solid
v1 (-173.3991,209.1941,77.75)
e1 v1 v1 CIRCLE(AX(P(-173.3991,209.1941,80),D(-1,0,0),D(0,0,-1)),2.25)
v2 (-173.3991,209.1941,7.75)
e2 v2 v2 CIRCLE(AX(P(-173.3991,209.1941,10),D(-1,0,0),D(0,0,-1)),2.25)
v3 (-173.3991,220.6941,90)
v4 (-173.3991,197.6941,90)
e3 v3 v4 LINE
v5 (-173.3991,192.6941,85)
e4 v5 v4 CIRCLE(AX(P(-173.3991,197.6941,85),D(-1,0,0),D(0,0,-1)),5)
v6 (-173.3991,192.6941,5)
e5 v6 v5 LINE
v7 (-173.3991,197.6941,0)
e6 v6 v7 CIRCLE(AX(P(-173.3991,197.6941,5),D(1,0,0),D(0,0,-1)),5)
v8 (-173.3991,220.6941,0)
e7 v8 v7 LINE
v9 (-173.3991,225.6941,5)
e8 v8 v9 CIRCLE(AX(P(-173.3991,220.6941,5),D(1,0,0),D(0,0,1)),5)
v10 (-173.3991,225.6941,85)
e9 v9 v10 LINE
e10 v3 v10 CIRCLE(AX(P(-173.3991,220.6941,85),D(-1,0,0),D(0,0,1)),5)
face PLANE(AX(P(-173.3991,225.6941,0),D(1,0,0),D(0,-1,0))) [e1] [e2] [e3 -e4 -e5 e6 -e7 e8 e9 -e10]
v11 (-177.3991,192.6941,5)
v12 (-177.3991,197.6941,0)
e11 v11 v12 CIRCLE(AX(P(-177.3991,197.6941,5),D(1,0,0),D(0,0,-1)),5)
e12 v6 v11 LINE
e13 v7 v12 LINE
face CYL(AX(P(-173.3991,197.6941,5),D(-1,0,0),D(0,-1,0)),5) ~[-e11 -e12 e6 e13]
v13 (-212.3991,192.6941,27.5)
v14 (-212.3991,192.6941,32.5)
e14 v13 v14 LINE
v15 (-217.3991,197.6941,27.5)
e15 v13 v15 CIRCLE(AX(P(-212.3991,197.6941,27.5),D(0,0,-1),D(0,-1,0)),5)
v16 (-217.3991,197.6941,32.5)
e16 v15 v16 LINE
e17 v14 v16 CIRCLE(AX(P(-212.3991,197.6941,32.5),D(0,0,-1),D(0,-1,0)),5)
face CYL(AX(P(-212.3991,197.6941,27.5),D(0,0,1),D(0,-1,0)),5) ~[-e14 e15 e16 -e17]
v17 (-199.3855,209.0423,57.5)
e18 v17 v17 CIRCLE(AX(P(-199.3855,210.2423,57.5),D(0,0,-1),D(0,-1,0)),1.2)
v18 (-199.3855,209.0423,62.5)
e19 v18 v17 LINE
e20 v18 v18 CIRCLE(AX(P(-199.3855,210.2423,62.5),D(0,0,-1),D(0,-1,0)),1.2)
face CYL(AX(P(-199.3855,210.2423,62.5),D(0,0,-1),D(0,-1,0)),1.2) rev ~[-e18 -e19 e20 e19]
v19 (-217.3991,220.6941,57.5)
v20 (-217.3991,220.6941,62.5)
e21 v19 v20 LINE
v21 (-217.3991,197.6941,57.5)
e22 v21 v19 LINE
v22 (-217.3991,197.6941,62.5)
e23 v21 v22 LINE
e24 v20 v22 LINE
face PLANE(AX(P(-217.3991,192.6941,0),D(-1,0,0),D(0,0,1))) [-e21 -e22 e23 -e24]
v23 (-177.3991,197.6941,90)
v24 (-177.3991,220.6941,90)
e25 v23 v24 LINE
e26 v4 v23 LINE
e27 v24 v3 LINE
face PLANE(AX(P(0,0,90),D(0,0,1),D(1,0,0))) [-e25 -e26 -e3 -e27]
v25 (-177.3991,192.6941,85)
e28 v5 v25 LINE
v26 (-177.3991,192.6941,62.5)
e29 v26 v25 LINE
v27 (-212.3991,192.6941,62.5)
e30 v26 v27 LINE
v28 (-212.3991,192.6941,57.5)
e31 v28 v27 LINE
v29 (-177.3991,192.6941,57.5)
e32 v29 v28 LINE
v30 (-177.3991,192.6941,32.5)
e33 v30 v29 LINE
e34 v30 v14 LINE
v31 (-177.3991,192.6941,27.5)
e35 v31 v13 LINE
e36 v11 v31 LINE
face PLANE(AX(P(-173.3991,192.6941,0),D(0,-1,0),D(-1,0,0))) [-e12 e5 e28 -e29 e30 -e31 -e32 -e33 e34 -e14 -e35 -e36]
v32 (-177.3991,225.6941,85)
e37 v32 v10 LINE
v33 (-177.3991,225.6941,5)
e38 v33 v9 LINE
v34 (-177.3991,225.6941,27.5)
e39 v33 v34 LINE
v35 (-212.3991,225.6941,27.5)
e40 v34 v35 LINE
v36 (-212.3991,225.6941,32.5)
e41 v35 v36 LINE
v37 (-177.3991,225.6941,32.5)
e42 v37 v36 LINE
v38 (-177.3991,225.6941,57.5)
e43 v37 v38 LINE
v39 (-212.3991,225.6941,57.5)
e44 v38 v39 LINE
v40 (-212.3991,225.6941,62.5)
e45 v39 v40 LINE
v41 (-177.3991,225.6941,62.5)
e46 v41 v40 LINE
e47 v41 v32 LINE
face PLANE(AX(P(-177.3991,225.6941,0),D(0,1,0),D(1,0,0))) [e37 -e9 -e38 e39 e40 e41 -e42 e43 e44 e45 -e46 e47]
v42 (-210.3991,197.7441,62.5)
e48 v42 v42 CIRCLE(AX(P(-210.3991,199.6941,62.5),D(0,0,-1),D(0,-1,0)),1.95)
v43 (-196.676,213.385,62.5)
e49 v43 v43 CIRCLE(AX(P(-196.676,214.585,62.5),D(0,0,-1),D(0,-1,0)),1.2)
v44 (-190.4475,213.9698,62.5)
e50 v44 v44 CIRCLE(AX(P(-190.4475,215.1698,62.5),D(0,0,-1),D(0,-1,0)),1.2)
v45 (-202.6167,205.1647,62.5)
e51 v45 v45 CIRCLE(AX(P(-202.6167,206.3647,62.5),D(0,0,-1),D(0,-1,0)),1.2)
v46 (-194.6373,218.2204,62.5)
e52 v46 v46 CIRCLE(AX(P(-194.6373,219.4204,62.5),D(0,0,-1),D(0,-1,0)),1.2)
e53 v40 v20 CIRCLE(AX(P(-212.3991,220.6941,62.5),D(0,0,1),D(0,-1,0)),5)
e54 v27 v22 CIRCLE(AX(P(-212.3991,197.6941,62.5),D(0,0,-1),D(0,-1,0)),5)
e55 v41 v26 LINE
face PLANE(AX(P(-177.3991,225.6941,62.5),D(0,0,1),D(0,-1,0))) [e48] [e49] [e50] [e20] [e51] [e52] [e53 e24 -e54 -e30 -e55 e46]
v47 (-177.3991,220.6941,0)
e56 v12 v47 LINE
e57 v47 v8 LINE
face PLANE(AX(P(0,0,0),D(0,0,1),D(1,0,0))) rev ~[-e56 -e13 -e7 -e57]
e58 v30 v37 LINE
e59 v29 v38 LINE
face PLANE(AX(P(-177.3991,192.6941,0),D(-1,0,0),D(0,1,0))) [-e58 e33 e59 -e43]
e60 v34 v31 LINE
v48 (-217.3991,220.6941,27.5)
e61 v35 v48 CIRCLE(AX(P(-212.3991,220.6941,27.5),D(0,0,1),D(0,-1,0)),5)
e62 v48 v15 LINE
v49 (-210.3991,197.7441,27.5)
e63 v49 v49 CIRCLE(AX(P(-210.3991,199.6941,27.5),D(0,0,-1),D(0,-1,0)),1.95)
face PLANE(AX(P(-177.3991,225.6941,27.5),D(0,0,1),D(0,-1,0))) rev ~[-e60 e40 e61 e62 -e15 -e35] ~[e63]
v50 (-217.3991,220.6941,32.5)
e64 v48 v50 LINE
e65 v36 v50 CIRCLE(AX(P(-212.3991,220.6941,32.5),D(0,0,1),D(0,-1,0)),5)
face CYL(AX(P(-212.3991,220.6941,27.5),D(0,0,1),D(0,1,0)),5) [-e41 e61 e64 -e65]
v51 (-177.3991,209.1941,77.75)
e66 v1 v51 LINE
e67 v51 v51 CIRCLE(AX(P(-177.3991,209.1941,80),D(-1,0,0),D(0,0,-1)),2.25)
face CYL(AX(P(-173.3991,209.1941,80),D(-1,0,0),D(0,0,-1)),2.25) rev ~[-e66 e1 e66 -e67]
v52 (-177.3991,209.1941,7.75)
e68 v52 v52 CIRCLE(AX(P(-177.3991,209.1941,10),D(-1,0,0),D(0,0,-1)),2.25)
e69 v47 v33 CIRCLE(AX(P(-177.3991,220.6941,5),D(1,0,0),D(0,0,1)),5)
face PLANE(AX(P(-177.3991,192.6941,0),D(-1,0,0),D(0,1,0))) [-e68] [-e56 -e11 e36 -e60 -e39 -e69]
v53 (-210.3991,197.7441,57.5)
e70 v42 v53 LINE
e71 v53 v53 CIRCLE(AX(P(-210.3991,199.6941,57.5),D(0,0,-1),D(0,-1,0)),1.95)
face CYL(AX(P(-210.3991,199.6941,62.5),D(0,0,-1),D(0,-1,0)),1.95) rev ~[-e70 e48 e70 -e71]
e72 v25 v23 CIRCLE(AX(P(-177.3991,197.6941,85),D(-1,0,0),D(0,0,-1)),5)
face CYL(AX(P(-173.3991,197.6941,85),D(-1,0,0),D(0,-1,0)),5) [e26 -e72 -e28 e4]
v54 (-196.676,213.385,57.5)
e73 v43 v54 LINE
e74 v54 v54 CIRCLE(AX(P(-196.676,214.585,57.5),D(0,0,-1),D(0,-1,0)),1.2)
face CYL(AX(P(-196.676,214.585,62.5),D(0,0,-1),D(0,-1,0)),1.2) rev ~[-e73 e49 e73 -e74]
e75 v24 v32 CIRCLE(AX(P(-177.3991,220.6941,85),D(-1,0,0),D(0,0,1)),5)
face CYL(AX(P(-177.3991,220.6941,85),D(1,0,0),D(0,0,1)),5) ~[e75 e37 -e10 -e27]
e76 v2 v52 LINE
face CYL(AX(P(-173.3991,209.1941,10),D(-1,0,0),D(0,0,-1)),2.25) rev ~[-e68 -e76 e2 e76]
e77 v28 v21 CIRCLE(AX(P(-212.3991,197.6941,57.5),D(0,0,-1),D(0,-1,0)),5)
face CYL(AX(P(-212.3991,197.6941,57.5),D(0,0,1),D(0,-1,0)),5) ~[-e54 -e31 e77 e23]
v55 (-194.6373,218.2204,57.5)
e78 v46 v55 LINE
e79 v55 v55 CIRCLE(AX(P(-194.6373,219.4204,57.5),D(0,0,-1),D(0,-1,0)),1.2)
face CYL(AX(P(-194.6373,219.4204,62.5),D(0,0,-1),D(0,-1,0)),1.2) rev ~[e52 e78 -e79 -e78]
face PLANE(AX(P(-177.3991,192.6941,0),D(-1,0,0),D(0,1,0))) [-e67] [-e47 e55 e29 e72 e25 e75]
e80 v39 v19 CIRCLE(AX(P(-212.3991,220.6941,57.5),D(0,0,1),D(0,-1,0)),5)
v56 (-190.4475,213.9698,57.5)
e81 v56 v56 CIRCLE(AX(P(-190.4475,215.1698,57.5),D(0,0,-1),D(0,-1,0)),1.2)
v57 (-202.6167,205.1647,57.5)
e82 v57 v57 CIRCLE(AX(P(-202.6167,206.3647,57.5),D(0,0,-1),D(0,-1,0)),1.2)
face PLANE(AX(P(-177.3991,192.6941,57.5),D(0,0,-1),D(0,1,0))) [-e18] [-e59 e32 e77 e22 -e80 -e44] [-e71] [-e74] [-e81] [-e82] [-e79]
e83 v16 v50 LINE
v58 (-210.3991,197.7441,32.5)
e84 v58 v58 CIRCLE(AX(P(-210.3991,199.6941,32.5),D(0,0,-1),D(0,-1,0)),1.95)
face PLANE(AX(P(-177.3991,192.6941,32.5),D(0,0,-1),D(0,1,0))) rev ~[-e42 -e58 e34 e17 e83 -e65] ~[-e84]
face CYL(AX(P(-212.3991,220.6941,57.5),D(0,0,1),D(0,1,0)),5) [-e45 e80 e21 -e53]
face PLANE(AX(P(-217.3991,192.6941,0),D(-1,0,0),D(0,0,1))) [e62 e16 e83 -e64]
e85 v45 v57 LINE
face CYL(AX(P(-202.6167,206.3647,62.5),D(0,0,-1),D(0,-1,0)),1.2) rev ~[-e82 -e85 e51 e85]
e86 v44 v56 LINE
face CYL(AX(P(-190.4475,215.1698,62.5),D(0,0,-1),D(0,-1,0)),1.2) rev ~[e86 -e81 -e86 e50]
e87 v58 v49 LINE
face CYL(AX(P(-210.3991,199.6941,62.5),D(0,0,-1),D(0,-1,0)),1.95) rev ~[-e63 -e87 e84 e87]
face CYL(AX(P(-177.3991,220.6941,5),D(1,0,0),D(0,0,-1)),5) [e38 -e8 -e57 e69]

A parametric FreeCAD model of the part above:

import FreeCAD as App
import Part
import Sketcher


def edges_at(feature, points):
    """Names of the edges that pass closest to the given points."""
    edges = feature.Shape.Edges
    near = lambda p: min(range(len(edges)), key=lambda i: edges[i].distToShape(Part.Vertex(*p))[0])
    return sorted({f"Edge{near(p) + 1}" for p in points})

doc = App.newDocument("Part")
body = doc.addObject("PartDesign::Body", "Body")

# Sketch on XY plane
sketch1 = body.newObject("Sketcher::SketchObject", "Sketch")
sketch1.AttachmentSupport = (doc.getObject("XY_Plane"), [""])
sketch1.MapMode = "FlatFace"
sketch1.addGeometry([
    Part.LineSegment(App.Vector(-177.4, 192.7, 0), App.Vector(-173.4, 192.7, 0)),
    Part.LineSegment(App.Vector(-173.4, 192.7, 0), App.Vector(-173.4, 225.7, 0)),
    Part.LineSegment(App.Vector(-173.4, 225.7, 0), App.Vector(-177.4, 225.7, 0)),
    Part.LineSegment(App.Vector(-177.4, 225.7, 0), App.Vector(-177.4, 192.7, 0)),
], False)
sketch1.addConstraint([
    Sketcher.Constraint("Coincident", 0, 2, 1, 1),
    Sketcher.Constraint("Coincident", 1, 2, 2, 1),
    Sketcher.Constraint("Coincident", 2, 2, 3, 1),
    Sketcher.Constraint("Coincident", 3, 2, 0, 1),
    Sketcher.Constraint("Horizontal", 0),
    Sketcher.Constraint("Vertical", 1),
    Sketcher.Constraint("Horizontal", 2),
    Sketcher.Constraint("Vertical", 3),
    Sketcher.Constraint("DistanceX", 0, 1, 0, 2, 4.0),
    Sketcher.Constraint("DistanceY", 1, 1, 1, 2, 33.0),
    Sketcher.Constraint("DistanceX", 0, 2, -1, 1, 173.399),
    Sketcher.Constraint("DistanceY", -1, 1, 0, 2, 192.694),
])
pad1 = body.newObject("PartDesign::Pad", "Pad")
pad1.Profile = sketch1
pad1.Length = 90

# Sketch on YZ plane
sketch2 = body.newObject("Sketcher::SketchObject", "Sketch001")
sketch2.AttachmentSupport = (doc.getObject("YZ_Plane"), [""])
sketch2.MapMode = "FlatFace"
sketch2.AttachmentOffset = App.Placement(App.Vector(0, 0, -177.3991), App.Rotation())
sketch2.addGeometry([
    Part.LineSegment(App.Vector(193, 58, 0), App.Vector(193, 62, 0)),  # 0
    Part.LineSegment(App.Vector(193, 62, 0), App.Vector(226, 62, 0)),  # 1
    Part.LineSegment(App.Vector(226, 62, 0), App.Vector(226, 58, 0)),  # 2
    Part.LineSegment(App.Vector(226, 58, 0), App.Vector(193, 58, 0)),  # 3
    Part.LineSegment(App.Vector(193, 28, 0), App.Vector(193, 32, 0)),  # 4
    Part.LineSegment(App.Vector(193, 32, 0), App.Vector(226, 32, 0)),  # 5
    Part.LineSegment(App.Vector(226, 32, 0), App.Vector(226, 28, 0)),  # 6
    Part.LineSegment(App.Vector(226, 28, 0), App.Vector(193, 28, 0)),  # 7
], False)
sketch2.addConstraint([
    Sketcher.Constraint("Coincident", 0, 2, 1, 1),
    Sketcher.Constraint("Coincident", 1, 2, 2, 1),
    Sketcher.Constraint("Coincident", 2, 2, 3, 1),
    Sketcher.Constraint("Coincident", 3, 2, 0, 1),
    Sketcher.Constraint("Coincident", 4, 2, 5, 1),
    Sketcher.Constraint("Coincident", 5, 2, 6, 1),
    Sketcher.Constraint("Coincident", 6, 2, 7, 1),
    Sketcher.Constraint("Coincident", 7, 2, 4, 1),
    Sketcher.Constraint("Vertical", 0),
    Sketcher.Constraint("Horizontal", 1),
    Sketcher.Constraint("Vertical", 2),
    Sketcher.Constraint("Horizontal", 3),
    Sketcher.Constraint("Vertical", 4),
    Sketcher.Constraint("Horizontal", 5),
    Sketcher.Constraint("Vertical", 6),
    Sketcher.Constraint("Horizontal", 7),
    Sketcher.Constraint("Vertical", 3, 2, 4, 2),
    Sketcher.Constraint("Vertical", 2, 2, 5, 2),
    Sketcher.Constraint("Equal", 2, 4),
    Sketcher.Constraint("DistanceY", 0, 1, 0, 2, 5.0),
    Sketcher.Constraint("DistanceX", 1, 1, 1, 2, 33.0),
    Sketcher.Constraint("DistanceY", 4, 2, 3, 2, 25.0),
    Sketcher.Constraint("DistanceY", -1, 1, 0, 2, 62.5),
    Sketcher.Constraint("DistanceX", -1, 1, 0, 2, 192.694),
])
pad2 = body.newObject("PartDesign::Pad", "Pad001")
pad2.Profile = sketch2
pad2.Length = 40
pad2.Reversed = True
doc.recompute()

fillet = body.newObject("PartDesign::Fillet", "Fillet")
fillet.Base = (pad2, edges_at(pad2, [
    (-217.399, 192.694, 60),
    (-217.399, 225.694, 60),
    (-217.399, 225.694, 30),
    (-217.399, 192.694, 30),
    (-175.399, 192.694, 90),
    (-175.399, 225.694, 90),
    (-175.399, 225.694, 0),
    (-175.399, 192.694, 0),
]))
fillet.Radius = 5

# Sketch on XY plane
sketch3 = body.newObject("Sketcher::SketchObject", "Sketch002")
sketch3.AttachmentSupport = (doc.getObject("XY_Plane"), [""])
sketch3.MapMode = "FlatFace"
sketch3.AttachmentOffset = App.Placement(App.Vector(0, 0, 62.5), App.Rotation())
sketch3.addGeometry([
    Part.Circle(App.Vector(-190.4, 215.2, 0), App.Vector(0, 0, 1), 1.2),  # 0
    Part.Circle(App.Vector(-199.4, 210.2, 0), App.Vector(0, 0, 1), 1.2),  # 1
    Part.Circle(App.Vector(-202.6, 206.4, 0), App.Vector(0, 0, 1), 1.2),  # 2
    Part.Circle(App.Vector(-196.7, 214.6, 0), App.Vector(0, 0, 1), 1.2),  # 3
    Part.Circle(App.Vector(-194.6, 219.4, 0), App.Vector(0, 0, 1), 1.2),  # 4
], False)
sketch3.addConstraint([
    Sketcher.Constraint("Equal", 0, 1),
    Sketcher.Constraint("Equal", 1, 2),
    Sketcher.Constraint("Equal", 2, 3),
    Sketcher.Constraint("Equal", 3, 4),
    Sketcher.Constraint("Diameter", 0, 2.4),
    Sketcher.Constraint("DistanceX", 3, 3, -1, 1, 196.676),
    Sketcher.Constraint("DistanceY", -1, 1, 3, 3, 214.585),
    Sketcher.Constraint("DistanceX", 1, 3, 0, 3, 8.938),
    Sketcher.Constraint("DistanceY", 2, 3, 0, 3, 8.805),
    Sketcher.Constraint("DistanceY", 1, 3, 4, 3, 9.178),
    Sketcher.Constraint("DistanceX", 0, 3, -1, 1, 190.4475),
    Sketcher.Constraint("DistanceY", -1, 1, 0, 3, 215.1698),
    Sketcher.Constraint("DistanceY", -1, 1, 1, 3, 210.2423),
    Sketcher.Constraint("DistanceX", 2, 3, -1, 1, 202.6167),
    Sketcher.Constraint("DistanceX", 4, 3, -1, 1, 194.6373),
])
doc.recompute()
hole = body.newObject("PartDesign::Hole", "Hole")
hole.Profile = sketch3
hole.ThreadType = "None"
hole.Diameter = 2.4
hole.DepthType = "Dimension"
hole.Depth = 8
hole.DrillPoint = "Angled"
hole.DrillPointAngle = 118

# Sketch on XY plane
sketch4 = body.newObject("Sketcher::SketchObject", "Sketch003")
sketch4.AttachmentSupport = (doc.getObject("XY_Plane"), [""])
sketch4.MapMode = "FlatFace"
sketch4.AttachmentOffset = App.Placement(App.Vector(0, 0, 62.5), App.Rotation())
sketch4.addGeometry(Part.Circle(App.Vector(-210.4, 199.7, 0), App.Vector(0, 0, 1), 1.9), False)
sketch4.addConstraint([
    Sketcher.Constraint("Diameter", 0, 3.9),
    Sketcher.Constraint("DistanceX", 0, 3, -1, 1, 210.399),
    Sketcher.Constraint("DistanceY", -1, 1, 0, 3, 199.694),
])
doc.recompute()
hole2 = body.newObject("PartDesign::Hole", "Hole001")
hole2.Profile = sketch4
hole2.ThreadType = "None"
hole2.Diameter = 3.9
hole2.DepthType = "ThroughAll"

# Sketch on YZ plane
sketch5 = body.newObject("Sketcher::SketchObject", "Sketch004")
sketch5.AttachmentSupport = (doc.getObject("YZ_Plane"), [""])
sketch5.MapMode = "FlatFace"
sketch5.AttachmentOffset = App.Placement(App.Vector(0, 0, -173.3991), App.Rotation())
sketch5.addGeometry([
    Part.Circle(App.Vector(209.2, 80, 0), App.Vector(0, 0, 1), 2.2),
    Part.Circle(App.Vector(209.2, 10, 0), App.Vector(0, 0, 1), 2.2),
], False)
sketch5.addConstraint([
    Sketcher.Constraint("Equal", 0, 1),
    Sketcher.Constraint("Vertical", 0, 3, 1, 3),
    Sketcher.Constraint("Diameter", 0, 4.5),
    Sketcher.Constraint("DistanceY", -1, 1, 0, 3, 80.0),
    Sketcher.Constraint("DistanceY", -1, 1, 1, 3, 10.0),
    Sketcher.Constraint("DistanceX", -1, 1, 0, 3, 209.194),
])
doc.recompute()
hole3 = body.newObject("PartDesign::Hole", "Hole002")
hole3.Profile = sketch5
hole3.ThreadType = "None"
hole3.Diameter = 4.5
hole3.DepthType = "Dimension"
hole3.Depth = 8
hole3.DrillPoint = "Angled"
hole3.DrillPointAngle = 118

doc.recompute()
